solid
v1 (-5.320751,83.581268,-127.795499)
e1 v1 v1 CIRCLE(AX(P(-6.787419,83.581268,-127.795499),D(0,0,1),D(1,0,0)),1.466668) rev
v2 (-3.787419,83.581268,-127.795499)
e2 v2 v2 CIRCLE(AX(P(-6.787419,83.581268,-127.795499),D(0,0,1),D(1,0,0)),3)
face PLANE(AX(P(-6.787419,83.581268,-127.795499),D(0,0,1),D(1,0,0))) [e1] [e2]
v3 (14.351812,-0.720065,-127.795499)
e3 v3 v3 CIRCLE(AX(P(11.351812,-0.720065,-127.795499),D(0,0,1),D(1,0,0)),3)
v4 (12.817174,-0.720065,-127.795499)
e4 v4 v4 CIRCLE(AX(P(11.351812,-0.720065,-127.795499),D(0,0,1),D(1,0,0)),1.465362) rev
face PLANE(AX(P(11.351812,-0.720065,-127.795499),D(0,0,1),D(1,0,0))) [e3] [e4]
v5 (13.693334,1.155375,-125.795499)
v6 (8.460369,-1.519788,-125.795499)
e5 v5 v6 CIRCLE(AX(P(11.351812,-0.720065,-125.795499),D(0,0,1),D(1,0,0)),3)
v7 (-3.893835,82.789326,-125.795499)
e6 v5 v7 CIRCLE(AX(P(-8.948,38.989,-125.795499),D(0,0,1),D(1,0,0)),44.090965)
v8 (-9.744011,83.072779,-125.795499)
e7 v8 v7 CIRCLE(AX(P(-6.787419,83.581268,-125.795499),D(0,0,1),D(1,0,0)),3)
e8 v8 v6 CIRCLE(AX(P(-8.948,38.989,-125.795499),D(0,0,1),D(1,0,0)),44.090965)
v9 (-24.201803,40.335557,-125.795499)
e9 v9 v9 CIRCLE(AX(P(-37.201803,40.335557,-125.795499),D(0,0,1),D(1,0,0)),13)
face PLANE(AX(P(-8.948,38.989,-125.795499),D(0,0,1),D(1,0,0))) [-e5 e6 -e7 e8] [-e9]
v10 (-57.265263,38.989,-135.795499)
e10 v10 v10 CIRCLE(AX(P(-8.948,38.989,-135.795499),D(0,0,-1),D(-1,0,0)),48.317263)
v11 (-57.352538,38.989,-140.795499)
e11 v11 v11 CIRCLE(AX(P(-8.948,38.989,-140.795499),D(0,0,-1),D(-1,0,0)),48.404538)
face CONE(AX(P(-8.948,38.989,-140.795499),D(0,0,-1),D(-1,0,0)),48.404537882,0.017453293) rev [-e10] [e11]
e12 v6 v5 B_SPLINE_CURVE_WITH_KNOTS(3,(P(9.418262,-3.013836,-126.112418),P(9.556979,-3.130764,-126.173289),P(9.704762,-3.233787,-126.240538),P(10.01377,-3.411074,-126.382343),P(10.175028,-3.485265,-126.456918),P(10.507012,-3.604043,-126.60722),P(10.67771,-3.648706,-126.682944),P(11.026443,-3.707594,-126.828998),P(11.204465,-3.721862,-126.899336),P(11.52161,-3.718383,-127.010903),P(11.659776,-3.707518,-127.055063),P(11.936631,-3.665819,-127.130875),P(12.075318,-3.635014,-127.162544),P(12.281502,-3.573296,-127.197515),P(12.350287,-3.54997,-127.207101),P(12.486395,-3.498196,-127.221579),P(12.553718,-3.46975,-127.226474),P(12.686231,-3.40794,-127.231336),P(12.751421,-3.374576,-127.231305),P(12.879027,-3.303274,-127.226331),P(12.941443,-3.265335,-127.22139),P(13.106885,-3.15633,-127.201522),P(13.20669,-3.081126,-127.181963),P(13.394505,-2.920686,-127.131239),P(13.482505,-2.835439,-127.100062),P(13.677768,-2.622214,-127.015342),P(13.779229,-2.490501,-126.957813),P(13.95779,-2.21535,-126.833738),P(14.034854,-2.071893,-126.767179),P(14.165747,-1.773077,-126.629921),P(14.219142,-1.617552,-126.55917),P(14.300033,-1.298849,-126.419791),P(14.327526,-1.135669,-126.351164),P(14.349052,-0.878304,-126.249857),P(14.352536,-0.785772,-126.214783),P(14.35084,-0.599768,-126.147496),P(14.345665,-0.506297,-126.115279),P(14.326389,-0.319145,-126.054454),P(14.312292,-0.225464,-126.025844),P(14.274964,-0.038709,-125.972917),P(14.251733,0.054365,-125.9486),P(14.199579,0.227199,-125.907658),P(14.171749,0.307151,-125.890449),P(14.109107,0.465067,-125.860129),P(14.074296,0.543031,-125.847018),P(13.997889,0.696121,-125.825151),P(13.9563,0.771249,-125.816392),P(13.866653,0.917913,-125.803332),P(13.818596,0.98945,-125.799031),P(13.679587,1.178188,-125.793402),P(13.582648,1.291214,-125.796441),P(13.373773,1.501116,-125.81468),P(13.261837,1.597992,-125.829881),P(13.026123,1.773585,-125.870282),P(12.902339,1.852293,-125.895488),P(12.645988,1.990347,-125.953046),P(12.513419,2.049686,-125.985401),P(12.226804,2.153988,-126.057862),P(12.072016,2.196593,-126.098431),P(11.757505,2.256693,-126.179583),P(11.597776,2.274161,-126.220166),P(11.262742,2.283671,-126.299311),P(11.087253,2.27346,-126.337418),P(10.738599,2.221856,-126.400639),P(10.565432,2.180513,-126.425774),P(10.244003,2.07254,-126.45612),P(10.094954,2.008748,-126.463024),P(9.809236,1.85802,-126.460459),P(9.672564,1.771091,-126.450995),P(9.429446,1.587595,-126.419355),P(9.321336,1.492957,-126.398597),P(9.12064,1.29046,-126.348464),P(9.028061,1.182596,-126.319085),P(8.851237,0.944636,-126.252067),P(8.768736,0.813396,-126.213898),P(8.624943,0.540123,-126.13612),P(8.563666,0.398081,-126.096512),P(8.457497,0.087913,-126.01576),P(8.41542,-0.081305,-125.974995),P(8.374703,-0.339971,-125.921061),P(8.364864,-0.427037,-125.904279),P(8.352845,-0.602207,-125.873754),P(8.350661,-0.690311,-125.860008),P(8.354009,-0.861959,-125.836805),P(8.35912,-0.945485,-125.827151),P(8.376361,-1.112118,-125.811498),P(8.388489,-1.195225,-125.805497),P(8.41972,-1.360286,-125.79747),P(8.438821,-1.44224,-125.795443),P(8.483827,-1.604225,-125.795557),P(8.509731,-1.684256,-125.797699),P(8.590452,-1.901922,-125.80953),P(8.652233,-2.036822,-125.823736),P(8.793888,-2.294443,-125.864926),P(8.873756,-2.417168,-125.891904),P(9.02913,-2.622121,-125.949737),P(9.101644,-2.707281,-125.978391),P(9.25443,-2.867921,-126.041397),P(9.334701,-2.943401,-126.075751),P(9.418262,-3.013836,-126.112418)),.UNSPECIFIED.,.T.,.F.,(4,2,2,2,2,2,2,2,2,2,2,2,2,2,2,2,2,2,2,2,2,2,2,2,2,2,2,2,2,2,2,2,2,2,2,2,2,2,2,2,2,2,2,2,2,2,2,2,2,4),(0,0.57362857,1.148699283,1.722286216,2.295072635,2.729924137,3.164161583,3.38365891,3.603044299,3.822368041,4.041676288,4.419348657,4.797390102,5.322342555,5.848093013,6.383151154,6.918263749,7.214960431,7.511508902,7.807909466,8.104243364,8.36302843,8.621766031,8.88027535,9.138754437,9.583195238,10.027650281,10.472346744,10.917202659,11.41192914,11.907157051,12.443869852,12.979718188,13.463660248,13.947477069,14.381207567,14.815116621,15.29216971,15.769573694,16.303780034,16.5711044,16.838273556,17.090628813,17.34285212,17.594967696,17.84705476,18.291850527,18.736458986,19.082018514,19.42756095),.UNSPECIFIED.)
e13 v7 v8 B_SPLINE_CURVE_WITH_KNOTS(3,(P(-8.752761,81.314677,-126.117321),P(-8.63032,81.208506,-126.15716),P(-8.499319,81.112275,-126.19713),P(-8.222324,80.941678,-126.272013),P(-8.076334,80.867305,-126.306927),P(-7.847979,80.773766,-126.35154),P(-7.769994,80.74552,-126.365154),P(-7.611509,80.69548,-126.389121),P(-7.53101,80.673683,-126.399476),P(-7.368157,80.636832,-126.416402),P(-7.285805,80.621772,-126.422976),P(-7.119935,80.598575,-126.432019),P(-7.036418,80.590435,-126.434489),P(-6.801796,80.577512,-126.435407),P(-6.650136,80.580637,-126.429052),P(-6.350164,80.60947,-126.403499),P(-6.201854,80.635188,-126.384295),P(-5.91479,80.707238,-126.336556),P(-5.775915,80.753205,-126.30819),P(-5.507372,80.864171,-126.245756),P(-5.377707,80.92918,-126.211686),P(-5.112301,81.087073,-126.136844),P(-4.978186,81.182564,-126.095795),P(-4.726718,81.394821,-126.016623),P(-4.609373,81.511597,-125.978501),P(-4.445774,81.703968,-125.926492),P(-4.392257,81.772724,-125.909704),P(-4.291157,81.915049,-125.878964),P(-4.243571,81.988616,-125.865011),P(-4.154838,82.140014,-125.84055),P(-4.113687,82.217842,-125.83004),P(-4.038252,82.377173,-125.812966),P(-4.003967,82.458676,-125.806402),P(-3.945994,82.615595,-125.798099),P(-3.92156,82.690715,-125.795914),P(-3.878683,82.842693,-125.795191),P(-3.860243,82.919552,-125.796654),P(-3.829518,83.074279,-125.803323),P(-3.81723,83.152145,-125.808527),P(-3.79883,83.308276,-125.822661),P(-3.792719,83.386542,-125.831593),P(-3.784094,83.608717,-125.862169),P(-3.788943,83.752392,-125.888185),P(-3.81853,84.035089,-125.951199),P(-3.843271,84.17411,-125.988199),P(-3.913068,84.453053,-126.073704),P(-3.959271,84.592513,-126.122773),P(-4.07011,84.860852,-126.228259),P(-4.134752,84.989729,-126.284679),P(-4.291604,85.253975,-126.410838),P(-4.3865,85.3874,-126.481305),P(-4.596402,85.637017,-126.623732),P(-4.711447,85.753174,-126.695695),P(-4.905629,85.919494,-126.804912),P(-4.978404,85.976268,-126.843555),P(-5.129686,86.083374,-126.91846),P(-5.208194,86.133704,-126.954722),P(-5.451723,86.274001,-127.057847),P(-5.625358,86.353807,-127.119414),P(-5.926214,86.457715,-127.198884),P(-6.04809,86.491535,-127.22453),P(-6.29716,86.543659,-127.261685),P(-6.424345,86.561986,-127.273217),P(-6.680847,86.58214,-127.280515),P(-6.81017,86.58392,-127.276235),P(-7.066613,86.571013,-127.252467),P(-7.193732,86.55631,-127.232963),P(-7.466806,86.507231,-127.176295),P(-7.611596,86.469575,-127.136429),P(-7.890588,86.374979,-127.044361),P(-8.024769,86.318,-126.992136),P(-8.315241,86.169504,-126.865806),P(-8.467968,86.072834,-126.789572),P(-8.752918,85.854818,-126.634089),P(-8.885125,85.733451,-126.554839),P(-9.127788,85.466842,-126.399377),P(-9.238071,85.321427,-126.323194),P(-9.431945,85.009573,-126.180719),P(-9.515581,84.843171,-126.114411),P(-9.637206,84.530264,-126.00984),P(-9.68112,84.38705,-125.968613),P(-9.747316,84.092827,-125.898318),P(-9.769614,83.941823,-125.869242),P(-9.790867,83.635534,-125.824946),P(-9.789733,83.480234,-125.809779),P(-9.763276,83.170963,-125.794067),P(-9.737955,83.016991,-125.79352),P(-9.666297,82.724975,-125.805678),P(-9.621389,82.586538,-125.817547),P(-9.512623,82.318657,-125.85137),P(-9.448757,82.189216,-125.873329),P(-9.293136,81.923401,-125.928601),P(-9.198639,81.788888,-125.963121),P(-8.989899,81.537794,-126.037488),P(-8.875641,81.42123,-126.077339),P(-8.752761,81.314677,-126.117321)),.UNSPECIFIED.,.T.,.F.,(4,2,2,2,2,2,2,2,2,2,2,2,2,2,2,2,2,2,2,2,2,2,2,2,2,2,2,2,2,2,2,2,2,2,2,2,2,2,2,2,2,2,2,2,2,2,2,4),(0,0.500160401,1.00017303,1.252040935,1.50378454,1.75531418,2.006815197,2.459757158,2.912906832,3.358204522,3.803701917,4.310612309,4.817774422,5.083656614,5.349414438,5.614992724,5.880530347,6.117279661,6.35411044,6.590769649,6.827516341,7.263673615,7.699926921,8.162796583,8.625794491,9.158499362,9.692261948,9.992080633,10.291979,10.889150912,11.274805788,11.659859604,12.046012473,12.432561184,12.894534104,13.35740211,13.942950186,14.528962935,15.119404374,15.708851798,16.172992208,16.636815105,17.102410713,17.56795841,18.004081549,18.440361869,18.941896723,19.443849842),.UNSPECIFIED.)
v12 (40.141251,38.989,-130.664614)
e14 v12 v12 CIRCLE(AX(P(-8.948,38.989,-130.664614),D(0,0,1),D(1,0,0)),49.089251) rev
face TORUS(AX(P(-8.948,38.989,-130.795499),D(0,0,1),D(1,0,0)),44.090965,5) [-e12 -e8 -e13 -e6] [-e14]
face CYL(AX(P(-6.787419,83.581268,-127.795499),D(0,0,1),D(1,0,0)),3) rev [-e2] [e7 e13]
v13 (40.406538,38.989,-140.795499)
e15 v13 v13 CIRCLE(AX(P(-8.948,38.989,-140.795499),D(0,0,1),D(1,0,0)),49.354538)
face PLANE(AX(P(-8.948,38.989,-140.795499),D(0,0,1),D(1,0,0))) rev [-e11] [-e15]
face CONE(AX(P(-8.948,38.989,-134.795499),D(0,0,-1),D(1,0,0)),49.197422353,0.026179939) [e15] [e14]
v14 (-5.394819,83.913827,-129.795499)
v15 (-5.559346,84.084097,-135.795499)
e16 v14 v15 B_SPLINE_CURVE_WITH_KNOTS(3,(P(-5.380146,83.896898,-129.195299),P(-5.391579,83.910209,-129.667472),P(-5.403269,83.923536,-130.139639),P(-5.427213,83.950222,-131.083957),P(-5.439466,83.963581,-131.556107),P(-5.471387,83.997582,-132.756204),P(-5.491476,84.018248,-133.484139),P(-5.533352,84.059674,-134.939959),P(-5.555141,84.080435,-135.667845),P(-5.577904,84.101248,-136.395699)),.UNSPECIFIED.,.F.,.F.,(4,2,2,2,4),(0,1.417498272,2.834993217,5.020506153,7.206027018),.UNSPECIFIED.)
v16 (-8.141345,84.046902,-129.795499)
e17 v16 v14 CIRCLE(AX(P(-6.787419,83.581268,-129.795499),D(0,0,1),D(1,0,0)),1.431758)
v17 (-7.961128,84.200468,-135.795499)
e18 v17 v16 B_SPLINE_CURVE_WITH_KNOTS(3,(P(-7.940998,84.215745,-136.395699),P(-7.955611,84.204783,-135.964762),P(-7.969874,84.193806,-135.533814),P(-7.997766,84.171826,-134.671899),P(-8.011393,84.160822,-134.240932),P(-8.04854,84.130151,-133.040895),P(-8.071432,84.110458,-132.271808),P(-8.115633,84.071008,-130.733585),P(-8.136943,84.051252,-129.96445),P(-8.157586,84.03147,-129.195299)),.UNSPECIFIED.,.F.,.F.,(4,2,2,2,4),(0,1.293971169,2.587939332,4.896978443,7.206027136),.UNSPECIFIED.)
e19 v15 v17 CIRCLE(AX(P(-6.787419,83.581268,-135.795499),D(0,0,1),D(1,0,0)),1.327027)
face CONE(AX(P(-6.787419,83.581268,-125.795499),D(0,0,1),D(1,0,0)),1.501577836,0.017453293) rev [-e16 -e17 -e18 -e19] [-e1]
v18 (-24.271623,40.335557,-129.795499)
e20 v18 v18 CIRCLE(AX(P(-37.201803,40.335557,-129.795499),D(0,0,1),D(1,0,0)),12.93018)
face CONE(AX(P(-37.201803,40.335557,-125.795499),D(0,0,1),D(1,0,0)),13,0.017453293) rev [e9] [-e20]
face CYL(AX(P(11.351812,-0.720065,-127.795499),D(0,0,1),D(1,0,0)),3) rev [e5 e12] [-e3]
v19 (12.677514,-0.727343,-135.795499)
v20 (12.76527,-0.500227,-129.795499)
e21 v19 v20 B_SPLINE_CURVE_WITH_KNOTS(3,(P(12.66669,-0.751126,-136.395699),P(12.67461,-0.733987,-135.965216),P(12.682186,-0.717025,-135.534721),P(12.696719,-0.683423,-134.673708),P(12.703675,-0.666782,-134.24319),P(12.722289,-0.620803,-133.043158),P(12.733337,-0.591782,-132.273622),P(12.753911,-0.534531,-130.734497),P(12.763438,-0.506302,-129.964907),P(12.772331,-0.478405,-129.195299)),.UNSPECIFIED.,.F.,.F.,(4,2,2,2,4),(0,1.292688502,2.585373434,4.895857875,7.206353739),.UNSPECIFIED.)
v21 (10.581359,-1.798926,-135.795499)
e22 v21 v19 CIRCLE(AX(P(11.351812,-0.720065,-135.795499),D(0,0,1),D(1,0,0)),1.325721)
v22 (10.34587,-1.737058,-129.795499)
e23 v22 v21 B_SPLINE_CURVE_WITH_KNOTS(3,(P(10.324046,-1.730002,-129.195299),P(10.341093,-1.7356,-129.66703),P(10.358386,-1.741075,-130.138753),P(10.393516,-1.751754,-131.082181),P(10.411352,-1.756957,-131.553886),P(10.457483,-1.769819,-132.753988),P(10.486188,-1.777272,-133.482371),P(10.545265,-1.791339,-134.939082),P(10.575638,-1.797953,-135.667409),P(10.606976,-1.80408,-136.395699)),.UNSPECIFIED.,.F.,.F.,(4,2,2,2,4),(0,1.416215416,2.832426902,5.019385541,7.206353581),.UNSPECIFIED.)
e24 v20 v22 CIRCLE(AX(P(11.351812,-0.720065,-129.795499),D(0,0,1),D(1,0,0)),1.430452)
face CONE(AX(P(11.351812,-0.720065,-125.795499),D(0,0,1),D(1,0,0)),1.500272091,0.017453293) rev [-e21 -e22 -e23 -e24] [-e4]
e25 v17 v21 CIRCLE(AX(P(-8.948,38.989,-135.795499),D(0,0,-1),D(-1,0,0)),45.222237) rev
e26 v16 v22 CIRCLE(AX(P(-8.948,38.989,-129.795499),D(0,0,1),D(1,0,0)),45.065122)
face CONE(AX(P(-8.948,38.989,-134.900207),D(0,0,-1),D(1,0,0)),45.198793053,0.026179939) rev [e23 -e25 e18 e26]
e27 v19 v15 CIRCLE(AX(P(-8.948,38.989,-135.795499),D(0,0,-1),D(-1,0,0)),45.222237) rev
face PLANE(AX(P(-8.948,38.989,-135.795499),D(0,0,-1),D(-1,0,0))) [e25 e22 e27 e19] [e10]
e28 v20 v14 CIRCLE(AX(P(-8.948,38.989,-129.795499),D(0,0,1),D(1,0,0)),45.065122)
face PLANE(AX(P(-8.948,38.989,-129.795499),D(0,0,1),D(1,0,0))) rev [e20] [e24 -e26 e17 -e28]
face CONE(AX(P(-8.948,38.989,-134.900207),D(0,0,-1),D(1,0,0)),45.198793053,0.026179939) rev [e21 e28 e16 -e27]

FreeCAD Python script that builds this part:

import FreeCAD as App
import Part
import Sketcher
from FreeCAD import Vector


def edges_at(feature, points):
    """Names of the edges that pass closest to the given points."""
    edges = feature.Shape.Edges
    near = lambda p: min(range(len(edges)), key=lambda i: edges[i].distToShape(Part.Vertex(*p))[0])
    return sorted({f"Edge{near(p) + 1}" for p in points})


def faces_at(feature, points):
    """Names of the faces that lie closest to the given points."""
    faces = feature.Shape.Faces
    near = lambda p: min(range(len(faces)), key=lambda i: faces[i].distToShape(Part.Vertex(*p))[0])
    return sorted({f"Face{near(p) + 1}" for p in points})

doc = App.newDocument("Part")
params = doc.addObject("Spreadsheet::Sheet", "Params")
for row, (alias, value) in enumerate([
    ("pad1_length", "9 mm"),
    ("pad1_taper", "-1.5 deg"),
    ("pad2_length", "6 mm"),
    ("pad2_taper", "1.5 deg"),
    ("thickness_wall", "4 mm"),
    ("fillet_radius", "5 mm"),
    ("sketch3_diameter", "26 mm"),
    ("pad3_length", "10 mm"),
    ("draft_angle", "1 deg"),
    ("pad4_length", "5 mm"),
    ("draft2_angle", "1 deg"),
    ("pad5_length", "10 mm"),
    ("draft3_angle", "1 deg"),
    ("pad6_length", "10 mm"),
    ("draft4_angle", "1 deg"),
    ("sketch7_diameter", "6 mm"),
    ("pocket1_length", "2 mm"),
], start=1):
    params.set(f"A{row}", alias)
    params.set(f"B{row}", "=" + value)
    params.setAlias(f"B{row}", alias)

body = doc.addObject("PartDesign::Body", "Body")

sketch1 = doc.addObject("Sketcher::SketchObject", "Sketch")
body.addObject(sketch1)
sketch1.AttachmentSupport = (doc.XY_Plane, [""])
sketch1.MapMode = "FlatFace"
sketch1.AttachmentOffset = App.Placement(Vector(0, 0, -134.795499), App.Rotation())
sketch1.addGeometry(Part.Circle(Vector(-9, 39, 0), Vector(0, 0, 1), 49), False)
sketch1.addConstraint([
    Sketcher.Constraint("Diameter", 0, 98.394845),
    Sketcher.Constraint("DistanceX", 0, 3, -1, 1, 8.948),
    Sketcher.Constraint("DistanceY", -1, 1, 0, 3, 38.989),
])
pad1 = doc.addObject("PartDesign::Pad", "Pad")
body.addObject(pad1)
pad1.Profile = sketch1
pad1.setExpression("Length", "Params.pad1_length")
pad1.setExpression("TaperAngle", "Params.pad1_taper")

sketch2 = doc.addObject("Sketcher::SketchObject", "Sketch001")
body.addObject(sketch2)
sketch2.AttachmentSupport = (doc.XY_Plane, [""])
sketch2.MapMode = "FlatFace"
sketch2.AttachmentOffset = App.Placement(Vector(0, 0, -134.795499), App.Rotation())
sketch2.addGeometry(Part.Circle(Vector(-9, 39, 0), Vector(0, 0, 1), 49), False)
sketch2.addConstraint([
    Sketcher.Constraint("Diameter", 0, 98.394845),
    Sketcher.Constraint("DistanceX", 0, 3, -1, 1, 8.948),
    Sketcher.Constraint("DistanceY", -1, 1, 0, 3, 38.989),
])
pad2 = doc.addObject("PartDesign::Pad", "Pad001")
body.addObject(pad2)
pad2.Profile = sketch2
pad2.setExpression("Length", "Params.pad2_length")
pad2.Reversed = True
pad2.setExpression("TaperAngle", "Params.pad2_taper")
doc.recompute()

thickness = doc.addObject("PartDesign::Thickness", "Thickness")
body.addObject(thickness)
thickness.Base = (pad2, faces_at(pad2, [(-8.948, 38.989, -140.795)]))
thickness.setExpression("Value", "Params.thickness_wall")
thickness.Reversed = True
thickness.Join = "Intersection"
doc.recompute()

fillet = doc.addObject("PartDesign::Fillet", "Fillet")
body.addObject(fillet)
fillet.Base = (thickness, edges_at(thickness, [(-57.91, 38.989, -125.795)]))
fillet.setExpression("Radius", "Params.fillet_radius")
body2 = doc.addObject("PartDesign::Body", "Body001")

sketch3 = doc.addObject("Sketcher::SketchObject", "Sketch002")
body2.addObject(sketch3)
sketch3.AttachmentSupport = (doc.getObject("XY_Plane001"), [""])
sketch3.MapMode = "FlatFace"
sketch3.AttachmentOffset = App.Placement(Vector(0, 0, -125.795499), App.Rotation())
sketch3.addGeometry(Part.Circle(Vector(-37, 40, 0), Vector(0, 0, 1), 13), False)
sketch3.addConstraint([
    Sketcher.Constraint("Diameter", 0, 26.0),
    Sketcher.Constraint("DistanceX", 0, 3, -1, 1, 37.201803),
    Sketcher.Constraint("DistanceY", -1, 1, 0, 3, 40.335557),
])
sketch3.setExpression("Constraints[0]", "Params.sketch3_diameter")
pad3 = doc.addObject("PartDesign::Pad", "Pad002")
body2.addObject(pad3)
pad3.Profile = sketch3
pad3.setExpression("Length", "Params.pad3_length")
pad3.Reversed = True
doc.recompute()

datumplane = doc.addObject("PartDesign::Plane", "DatumPlane")
body2.addObject(datumplane)
datumplane.AttachmentSupport = (doc.getObject("XY_Plane001"), [""])
datumplane.MapMode = "FlatFace"
datumplane.AttachmentOffset = App.Placement(Vector(0, 0, -125.795499), App.Rotation())
draft = doc.addObject("PartDesign::Draft", "Draft")
body2.addObject(draft)
draft.Base = (pad3, faces_at(pad3, [(-50.202, 40.336, -130.795)]))
draft.NeutralPlane = (datumplane, [""])
draft.setExpression("Angle", "Params.draft_angle")
draft.Reversed = True
doc.recompute()

boolean = doc.addObject("PartDesign::Boolean", "Boolean")
body.addObject(boolean)
boolean.Type = "Cut"
boolean.addObjects([body2])
body3 = doc.addObject("PartDesign::Body", "Body002")

sketch4 = doc.addObject("Sketcher::SketchObject", "Sketch003")
body3.addObject(sketch4)
sketch4.AttachmentSupport = (doc.getObject("XY_Plane002"), [""])
sketch4.MapMode = "FlatFace"
sketch4.AttachmentOffset = App.Placement(Vector(0, 0, -140.795499), App.Rotation())
sketch4.addGeometry(Part.Circle(Vector(-9, 39, 0), Vector(0, 0, 1), 48), False)
sketch4.addConstraint([
    Sketcher.Constraint("Diameter", 0, 96.809076),
    Sketcher.Constraint("DistanceX", 0, 3, -1, 1, 8.948),
    Sketcher.Constraint("DistanceY", -1, 1, 0, 3, 38.989),
])
pad4 = doc.addObject("PartDesign::Pad", "Pad003")
body3.addObject(pad4)
pad4.Profile = sketch4
pad4.setExpression("Length", "Params.pad4_length")
doc.recompute()

datumplane2 = doc.addObject("PartDesign::Plane", "DatumPlane001")
body3.addObject(datumplane2)
datumplane2.AttachmentSupport = (doc.getObject("XY_Plane002"), [""])
datumplane2.MapMode = "FlatFace"
datumplane2.AttachmentOffset = App.Placement(Vector(0, 0, -140.795499), App.Rotation())
draft2 = doc.addObject("PartDesign::Draft", "Draft001")
body3.addObject(draft2)
draft2.Base = (pad4, faces_at(pad4, [(39.457, 38.989, -138.295)]))
draft2.NeutralPlane = (datumplane2, [""])
draft2.setExpression("Angle", "Params.draft2_angle")
draft2.Reversed = False
doc.recompute()

boolean2 = doc.addObject("PartDesign::Boolean", "Boolean001")
body.addObject(boolean2)
boolean2.Type = "Cut"
boolean2.addObjects([body3])
body4 = doc.addObject("PartDesign::Body", "Body003")

sketch5 = doc.addObject("Sketcher::SketchObject", "Sketch004")
body4.addObject(sketch5)
sketch5.AttachmentSupport = (doc.getObject("XY_Plane003"), [""])
sketch5.MapMode = "FlatFace"
sketch5.AttachmentOffset = App.Placement(Vector(0, 0, -125.795499), App.Rotation())
sketch5.addGeometry(Part.Circle(Vector(11.4, -0.7, 0), Vector(0, 0, 1), 1.5), False)
sketch5.addConstraint([
    Sketcher.Constraint("Diameter", 0, 3.000544),
    Sketcher.Constraint("DistanceX", -1, 1, 0, 3, 11.351812),
    Sketcher.Constraint("DistanceY", 0, 3, -1, 1, 0.720065),
])
pad5 = doc.addObject("PartDesign::Pad", "Pad004")
body4.addObject(pad5)
pad5.Profile = sketch5
pad5.setExpression("Length", "Params.pad5_length")
pad5.Reversed = True
doc.recompute()

datumplane3 = doc.addObject("PartDesign::Plane", "DatumPlane002")
body4.addObject(datumplane3)
datumplane3.AttachmentSupport = (doc.getObject("XY_Plane003"), [""])
datumplane3.MapMode = "FlatFace"
datumplane3.AttachmentOffset = App.Placement(Vector(0, 0, -125.795499), App.Rotation())
draft3 = doc.addObject("PartDesign::Draft", "Draft002")
body4.addObject(draft3)
draft3.Base = (pad5, faces_at(pad5, [(9.852, -0.72, -130.795)]))
draft3.NeutralPlane = (datumplane3, [""])
draft3.setExpression("Angle", "Params.draft3_angle")
draft3.Reversed = True
doc.recompute()

boolean3 = doc.addObject("PartDesign::Boolean", "Boolean002")
body.addObject(boolean3)
boolean3.Type = "Cut"
boolean3.addObjects([body4])
body5 = doc.addObject("PartDesign::Body", "Body004")

sketch6 = doc.addObject("Sketcher::SketchObject", "Sketch005")
body5.addObject(sketch6)
sketch6.AttachmentSupport = (doc.getObject("XY_Plane004"), [""])
sketch6.MapMode = "FlatFace"
sketch6.AttachmentOffset = App.Placement(Vector(0, 0, -125.795499), App.Rotation())
sketch6.addGeometry(Part.Circle(Vector(-6.8, 83.6, 0), Vector(0, 0, 1), 1.5), False)
sketch6.addConstraint([
    Sketcher.Constraint("Diameter", 0, 3.003156),
    Sketcher.Constraint("DistanceX", 0, 3, -1, 1, 6.787419),
    Sketcher.Constraint("DistanceY", -1, 1, 0, 3, 83.581268),
])
pad6 = doc.addObject("PartDesign::Pad", "Pad005")
body5.addObject(pad6)
pad6.Profile = sketch6
pad6.setExpression("Length", "Params.pad6_length")
pad6.Reversed = True
doc.recompute()

datumplane4 = doc.addObject("PartDesign::Plane", "DatumPlane003")
body5.addObject(datumplane4)
datumplane4.AttachmentSupport = (doc.getObject("XY_Plane004"), [""])
datumplane4.MapMode = "FlatFace"
datumplane4.AttachmentOffset = App.Placement(Vector(0, 0, -125.795499), App.Rotation())
draft4 = doc.addObject("PartDesign::Draft", "Draft003")
body5.addObject(draft4)
draft4.Base = (pad6, faces_at(pad6, [(-8.289, 83.581, -130.795)]))
draft4.NeutralPlane = (datumplane4, [""])
draft4.setExpression("Angle", "Params.draft4_angle")
draft4.Reversed = True
doc.recompute()

boolean4 = doc.addObject("PartDesign::Boolean", "Boolean003")
body.addObject(boolean4)
boolean4.Type = "Cut"
boolean4.addObjects([body5])

sketch7 = doc.addObject("Sketcher::SketchObject", "Sketch006")
body.addObject(sketch7)
sketch7.AttachmentSupport = (doc.XY_Plane, [""])
sketch7.MapMode = "FlatFace"
sketch7.AttachmentOffset = App.Placement(Vector(0, 0, -125.795499), App.Rotation())
sketch7.addGeometry([
    Part.Circle(Vector(-6.8, 83.6, 0), Vector(0, 0, 1), 3),
    Part.Circle(Vector(11.4, -0.7, 0), Vector(0, 0, 1), 3),
], False)
sketch7.addConstraint([
    Sketcher.Constraint("Equal", 0, 1),
    Sketcher.Constraint("Diameter", 0, 6.0),
    Sketcher.Constraint("DistanceX", 0, 3, -1, 1, 6.787419),
    Sketcher.Constraint("DistanceX", 0, 3, 1, 3, 18.139231),
    Sketcher.Constraint("DistanceY", -1, 1, 0, 3, 83.581268),
    Sketcher.Constraint("DistanceY", 1, 3, -1, 1, 0.720065),
])
sketch7.setExpression("Constraints[1]", "Params.sketch7_diameter")
pocket1 = doc.addObject("PartDesign::Pocket", "Pocket")
body.addObject(pocket1)
pocket1.Profile = sketch7
pocket1.setExpression("Length", "Params.pocket1_length")

doc.recompute()
